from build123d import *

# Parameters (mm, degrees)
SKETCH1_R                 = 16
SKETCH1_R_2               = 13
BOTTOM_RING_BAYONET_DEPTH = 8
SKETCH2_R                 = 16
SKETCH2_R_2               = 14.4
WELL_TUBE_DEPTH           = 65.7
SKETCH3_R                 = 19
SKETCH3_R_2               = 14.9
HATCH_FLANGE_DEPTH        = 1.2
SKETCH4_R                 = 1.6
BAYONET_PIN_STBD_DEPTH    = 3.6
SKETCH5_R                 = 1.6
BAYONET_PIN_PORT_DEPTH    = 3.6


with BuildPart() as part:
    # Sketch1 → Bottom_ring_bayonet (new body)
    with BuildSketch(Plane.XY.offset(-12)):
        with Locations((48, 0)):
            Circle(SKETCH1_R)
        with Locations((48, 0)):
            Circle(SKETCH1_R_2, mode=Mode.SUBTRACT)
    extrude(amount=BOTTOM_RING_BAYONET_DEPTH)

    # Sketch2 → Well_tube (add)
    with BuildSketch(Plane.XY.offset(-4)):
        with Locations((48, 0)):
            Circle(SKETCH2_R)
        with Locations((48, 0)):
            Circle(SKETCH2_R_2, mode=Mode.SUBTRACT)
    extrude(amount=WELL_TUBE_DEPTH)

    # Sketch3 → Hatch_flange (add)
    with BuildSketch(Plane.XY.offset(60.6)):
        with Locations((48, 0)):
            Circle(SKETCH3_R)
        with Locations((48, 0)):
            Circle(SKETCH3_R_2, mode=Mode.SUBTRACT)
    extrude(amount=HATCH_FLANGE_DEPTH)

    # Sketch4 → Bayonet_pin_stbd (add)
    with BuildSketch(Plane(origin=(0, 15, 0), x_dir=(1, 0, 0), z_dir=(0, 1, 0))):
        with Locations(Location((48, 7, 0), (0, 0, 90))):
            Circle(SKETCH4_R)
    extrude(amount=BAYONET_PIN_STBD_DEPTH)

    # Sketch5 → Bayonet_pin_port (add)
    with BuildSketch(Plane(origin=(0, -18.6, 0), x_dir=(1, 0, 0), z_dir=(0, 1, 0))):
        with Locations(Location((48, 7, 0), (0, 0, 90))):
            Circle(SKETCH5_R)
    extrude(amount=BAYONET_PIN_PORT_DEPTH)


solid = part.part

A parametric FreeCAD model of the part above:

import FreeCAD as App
import Part
import Sketcher
Q = App.Units.Quantity

doc = App.newDocument("Part")
body = doc.addObject("PartDesign::Body", "Body")

# Sketch on XY plane
sketch1 = body.newObject("Sketcher::SketchObject", "Sketch")
sketch1.AttachmentSupport = (doc.getObject("XY_Plane"), [""])
sketch1.MapMode = "FlatFace"
sketch1.AttachmentOffset = App.Placement(App.Vector(0, 0, -12), App.Rotation())
sketch1.addGeometry([
    Part.Circle(App.Vector(48, 0, 0), App.Vector(0, 0, 1), 16),
    Part.Circle(App.Vector(48, 0, 0), App.Vector(0, 0, 1), 13),
], False)
sketch1.addConstraint([
    Sketcher.Constraint("Coincident", 1, 3, 0, 3),
    Sketcher.Constraint("PointOnObject", 0, 3, -1),
    Sketcher.Constraint("Diameter", 0, Q("32 mm")),
    Sketcher.Constraint("Diameter", 1, Q("26 mm")),
    Sketcher.Constraint("DistanceX", -1, 1, 0, 3, Q("48 mm")),
])
pad1 = body.newObject("PartDesign::Pad", "Pad")
pad1.Profile = sketch1
pad1.Length = 8

# Sketch on XY plane
sketch2 = body.newObject("Sketcher::SketchObject", "Sketch001")
sketch2.AttachmentSupport = (doc.getObject("XY_Plane"), [""])
sketch2.MapMode = "FlatFace"
sketch2.AttachmentOffset = App.Placement(App.Vector(0, 0, -4), App.Rotation())
sketch2.addGeometry([
    Part.Circle(App.Vector(48, 0, 0), App.Vector(0, 0, 1), 16),
    Part.Circle(App.Vector(48, 0, 0), App.Vector(0, 0, 1), 14),
], False)
sketch2.addConstraint([
    Sketcher.Constraint("Coincident", 1, 3, 0, 3),
    Sketcher.Constraint("PointOnObject", 0, 3, -1),
    Sketcher.Constraint("Diameter", 0, Q("32 mm")),
    Sketcher.Constraint("Diameter", 1, Q("28.8 mm")),
    Sketcher.Constraint("DistanceX", -1, 1, 0, 3, Q("48 mm")),
])
pad2 = body.newObject("PartDesign::Pad", "Pad001")
pad2.Profile = sketch2
pad2.Length = 65.7

# Sketch on XY plane
sketch3 = body.newObject("Sketcher::SketchObject", "Sketch002")
sketch3.AttachmentSupport = (doc.getObject("XY_Plane"), [""])
sketch3.MapMode = "FlatFace"
sketch3.AttachmentOffset = App.Placement(App.Vector(0, 0, 60.6), App.Rotation())
sketch3.addGeometry([
    Part.Circle(App.Vector(48, 0, 0), App.Vector(0, 0, 1), 19),
    Part.Circle(App.Vector(48, 0, 0), App.Vector(0, 0, 1), 15),
], False)
sketch3.addConstraint([
    Sketcher.Constraint("Coincident", 1, 3, 0, 3),
    Sketcher.Constraint("PointOnObject", 0, 3, -1),
    Sketcher.Constraint("Diameter", 0, Q("38 mm")),
    Sketcher.Constraint("Diameter", 1, Q("29.8 mm")),
    Sketcher.Constraint("DistanceX", -1, 1, 0, 3, Q("48 mm")),
])
pad3 = body.newObject("PartDesign::Pad", "Pad002")
pad3.Profile = sketch3
pad3.Length = 1.2

# Sketch on XZ plane
sketch4 = body.newObject("Sketcher::SketchObject", "Sketch003")
sketch4.AttachmentSupport = (doc.getObject("XZ_Plane"), [""])
sketch4.MapMode = "FlatFace"
sketch4.AttachmentOffset = App.Placement(App.Vector(0, 0, -15), App.Rotation())
sketch4.addGeometry(Part.Circle(App.Vector(48, -7, 0), App.Vector(0, 0, 1), 1.6), False)
sketch4.addConstraint([
    Sketcher.Constraint("Diameter", 0, Q("3.2 mm")),
    Sketcher.Constraint("DistanceX", -1, 1, 0, 3, Q("48 mm")),
    Sketcher.Constraint("DistanceY", 0, 3, -1, 1, Q("7 mm")),
])
pad4 = body.newObject("PartDesign::Pad", "Pad003")
pad4.Profile = sketch4
pad4.Length = 3.6
pad4.Reversed = True

# Sketch on XZ plane
sketch5 = body.newObject("Sketcher::SketchObject", "Sketch004")
sketch5.AttachmentSupport = (doc.getObject("XZ_Plane"), [""])
sketch5.MapMode = "FlatFace"
sketch5.AttachmentOffset = App.Placement(App.Vector(0, 0, 18.6), App.Rotation())
sketch5.addGeometry(Part.Circle(App.Vector(48, -7, 0), App.Vector(0, 0, 1), 1.6), False)
sketch5.addConstraint([
    Sketcher.Constraint("Diameter", 0, Q("3.2 mm")),
    Sketcher.Constraint("DistanceX", -1, 1, 0, 3, Q("48 mm")),
    Sketcher.Constraint("DistanceY", 0, 3, -1, 1, Q("7 mm")),
])
pad5 = body.newObject("PartDesign::Pad", "Pad004")
pad5.Profile = sketch5
pad5.Length = 3.6
pad5.Reversed = True

doc.recompute()
